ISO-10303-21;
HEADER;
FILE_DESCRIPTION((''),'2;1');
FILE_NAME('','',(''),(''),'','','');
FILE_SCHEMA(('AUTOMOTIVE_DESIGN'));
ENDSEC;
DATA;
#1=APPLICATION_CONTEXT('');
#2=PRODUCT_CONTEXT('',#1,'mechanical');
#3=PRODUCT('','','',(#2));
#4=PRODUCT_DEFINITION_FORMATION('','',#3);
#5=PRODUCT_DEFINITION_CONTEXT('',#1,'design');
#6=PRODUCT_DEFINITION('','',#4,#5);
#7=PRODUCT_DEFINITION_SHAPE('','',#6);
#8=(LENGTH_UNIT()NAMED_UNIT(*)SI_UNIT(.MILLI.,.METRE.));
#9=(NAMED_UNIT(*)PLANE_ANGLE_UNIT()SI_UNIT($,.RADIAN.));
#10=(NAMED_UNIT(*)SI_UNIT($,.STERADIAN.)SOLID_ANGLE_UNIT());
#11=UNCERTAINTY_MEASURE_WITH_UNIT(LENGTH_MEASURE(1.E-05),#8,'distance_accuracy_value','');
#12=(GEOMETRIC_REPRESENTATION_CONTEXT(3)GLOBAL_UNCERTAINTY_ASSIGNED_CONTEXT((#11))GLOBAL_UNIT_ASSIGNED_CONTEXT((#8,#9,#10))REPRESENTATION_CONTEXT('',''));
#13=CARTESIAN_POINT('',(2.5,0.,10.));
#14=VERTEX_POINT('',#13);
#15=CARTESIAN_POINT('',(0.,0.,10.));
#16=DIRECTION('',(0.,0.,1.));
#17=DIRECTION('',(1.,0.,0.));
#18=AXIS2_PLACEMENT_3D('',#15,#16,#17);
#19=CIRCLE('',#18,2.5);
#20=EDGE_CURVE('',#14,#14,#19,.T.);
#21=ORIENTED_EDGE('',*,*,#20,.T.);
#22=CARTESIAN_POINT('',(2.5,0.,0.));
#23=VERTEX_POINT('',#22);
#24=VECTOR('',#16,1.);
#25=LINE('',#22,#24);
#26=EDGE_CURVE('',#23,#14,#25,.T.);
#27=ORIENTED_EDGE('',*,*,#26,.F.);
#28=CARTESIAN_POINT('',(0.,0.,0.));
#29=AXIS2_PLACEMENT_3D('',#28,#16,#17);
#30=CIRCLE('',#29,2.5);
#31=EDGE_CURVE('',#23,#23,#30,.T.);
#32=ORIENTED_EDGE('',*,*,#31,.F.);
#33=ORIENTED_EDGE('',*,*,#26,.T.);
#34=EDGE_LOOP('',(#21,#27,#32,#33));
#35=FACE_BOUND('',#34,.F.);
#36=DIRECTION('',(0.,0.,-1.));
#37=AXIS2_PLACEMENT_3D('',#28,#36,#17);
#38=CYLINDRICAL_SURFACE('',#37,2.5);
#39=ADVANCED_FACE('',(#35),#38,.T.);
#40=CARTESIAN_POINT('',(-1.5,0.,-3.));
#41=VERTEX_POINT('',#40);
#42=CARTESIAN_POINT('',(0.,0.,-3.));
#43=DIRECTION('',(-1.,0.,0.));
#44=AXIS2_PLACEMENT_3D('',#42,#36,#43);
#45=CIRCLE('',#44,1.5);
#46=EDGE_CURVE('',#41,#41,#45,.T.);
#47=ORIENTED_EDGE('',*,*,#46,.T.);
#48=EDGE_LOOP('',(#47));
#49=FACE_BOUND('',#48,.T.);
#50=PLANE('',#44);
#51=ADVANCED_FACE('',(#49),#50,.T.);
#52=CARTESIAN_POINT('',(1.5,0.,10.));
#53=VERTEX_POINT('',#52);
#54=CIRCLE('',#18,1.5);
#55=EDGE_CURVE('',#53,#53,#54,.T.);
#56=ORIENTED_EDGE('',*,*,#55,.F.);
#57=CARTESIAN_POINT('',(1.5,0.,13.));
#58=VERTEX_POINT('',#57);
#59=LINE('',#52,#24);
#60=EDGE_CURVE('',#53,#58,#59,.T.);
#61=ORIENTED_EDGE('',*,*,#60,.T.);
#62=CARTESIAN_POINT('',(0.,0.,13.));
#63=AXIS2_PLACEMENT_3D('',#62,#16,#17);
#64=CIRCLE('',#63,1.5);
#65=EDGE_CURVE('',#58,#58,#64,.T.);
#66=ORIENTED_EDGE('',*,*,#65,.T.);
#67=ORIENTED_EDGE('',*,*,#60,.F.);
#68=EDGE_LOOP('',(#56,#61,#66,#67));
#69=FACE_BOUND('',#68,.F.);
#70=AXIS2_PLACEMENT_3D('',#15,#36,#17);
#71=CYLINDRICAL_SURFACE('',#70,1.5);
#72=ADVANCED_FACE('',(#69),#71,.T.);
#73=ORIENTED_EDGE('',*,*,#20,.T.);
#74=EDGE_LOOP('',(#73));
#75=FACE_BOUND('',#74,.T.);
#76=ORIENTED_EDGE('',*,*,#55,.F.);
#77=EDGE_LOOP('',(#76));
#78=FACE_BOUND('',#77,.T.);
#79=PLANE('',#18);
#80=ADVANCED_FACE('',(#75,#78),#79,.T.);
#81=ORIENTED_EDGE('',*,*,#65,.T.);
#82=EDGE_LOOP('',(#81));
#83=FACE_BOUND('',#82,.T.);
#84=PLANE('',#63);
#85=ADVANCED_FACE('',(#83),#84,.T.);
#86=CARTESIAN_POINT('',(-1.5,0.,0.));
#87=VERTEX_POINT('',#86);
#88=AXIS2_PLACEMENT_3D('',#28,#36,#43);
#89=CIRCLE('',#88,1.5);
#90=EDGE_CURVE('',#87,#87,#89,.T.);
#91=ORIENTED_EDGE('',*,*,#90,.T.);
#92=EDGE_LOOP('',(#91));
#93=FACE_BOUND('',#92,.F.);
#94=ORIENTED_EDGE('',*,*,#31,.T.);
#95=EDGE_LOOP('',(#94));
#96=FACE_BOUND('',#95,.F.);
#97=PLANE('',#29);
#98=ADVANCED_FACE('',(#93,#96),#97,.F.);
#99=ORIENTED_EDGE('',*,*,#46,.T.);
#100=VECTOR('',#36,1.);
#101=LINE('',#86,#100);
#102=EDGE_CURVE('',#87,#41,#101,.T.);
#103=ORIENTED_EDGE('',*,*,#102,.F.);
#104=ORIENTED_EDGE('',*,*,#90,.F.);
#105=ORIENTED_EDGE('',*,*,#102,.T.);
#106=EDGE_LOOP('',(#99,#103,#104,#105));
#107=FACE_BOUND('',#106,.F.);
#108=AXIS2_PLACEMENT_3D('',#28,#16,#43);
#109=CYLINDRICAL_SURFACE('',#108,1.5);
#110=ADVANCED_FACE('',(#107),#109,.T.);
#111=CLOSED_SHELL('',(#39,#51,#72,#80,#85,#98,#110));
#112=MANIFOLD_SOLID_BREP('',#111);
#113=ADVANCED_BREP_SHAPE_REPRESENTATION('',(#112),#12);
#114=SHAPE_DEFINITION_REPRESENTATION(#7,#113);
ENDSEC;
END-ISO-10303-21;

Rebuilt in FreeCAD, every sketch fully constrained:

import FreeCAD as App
import Part
import Sketcher

V = App.Vector
Q = App.Units.Quantity

doc = App.newDocument("Part")
body = doc.addObject("PartDesign::Body", "Body")

sketch1 = body.newObject("Sketcher::SketchObject", "Sketch")
sketch1.AttachmentSupport = (doc.getObject("XY_Plane"), [""])
sketch1.MapMode = "FlatFace"
sketch1.addGeometry(Part.Circle(V(0, 0, 0), V(0, 0, 1), 2.5), False)
sketch1.addConstraint([
    Sketcher.Constraint("Coincident", 0, 3, -1, 1),
    Sketcher.Constraint("Diameter", 0, Q("5 mm")),
])
pad1 = body.newObject("PartDesign::Pad", "Pad")
pad1.Profile = sketch1
pad1.Length = 10

sketch2 = body.newObject("Sketcher::SketchObject", "Sketch001")
sketch2.AttachmentSupport = (doc.getObject("XY_Plane"), [""])
sketch2.MapMode = "FlatFace"
sketch2.AttachmentOffset = App.Placement(V(0, 0, 10), App.Rotation())
sketch2.addGeometry(Part.Circle(V(0, 0, 0), V(0, 0, 1), 1.5), False)
sketch2.addConstraint([
    Sketcher.Constraint("Coincident", 0, 3, -1, 1),
    Sketcher.Constraint("Diameter", 0, Q("3 mm")),
])
pad2 = body.newObject("PartDesign::Pad", "Pad001")
pad2.Profile = sketch2
pad2.Length = 3

sketch3 = body.newObject("Sketcher::SketchObject", "Sketch002")
sketch3.AttachmentSupport = (doc.getObject("XY_Plane"), [""])
sketch3.MapMode = "FlatFace"
sketch3.addGeometry(Part.Circle(V(0, 0, 0), V(0, 0, 1), 1.5), False)
sketch3.addConstraint([
    Sketcher.Constraint("Coincident", 0, 3, -1, 1),
    Sketcher.Constraint("Diameter", 0, Q("3 mm")),
])
pad3 = body.newObject("PartDesign::Pad", "Pad002")
pad3.Profile = sketch3
pad3.Length = 3
pad3.Reversed = True

doc.recompute()
